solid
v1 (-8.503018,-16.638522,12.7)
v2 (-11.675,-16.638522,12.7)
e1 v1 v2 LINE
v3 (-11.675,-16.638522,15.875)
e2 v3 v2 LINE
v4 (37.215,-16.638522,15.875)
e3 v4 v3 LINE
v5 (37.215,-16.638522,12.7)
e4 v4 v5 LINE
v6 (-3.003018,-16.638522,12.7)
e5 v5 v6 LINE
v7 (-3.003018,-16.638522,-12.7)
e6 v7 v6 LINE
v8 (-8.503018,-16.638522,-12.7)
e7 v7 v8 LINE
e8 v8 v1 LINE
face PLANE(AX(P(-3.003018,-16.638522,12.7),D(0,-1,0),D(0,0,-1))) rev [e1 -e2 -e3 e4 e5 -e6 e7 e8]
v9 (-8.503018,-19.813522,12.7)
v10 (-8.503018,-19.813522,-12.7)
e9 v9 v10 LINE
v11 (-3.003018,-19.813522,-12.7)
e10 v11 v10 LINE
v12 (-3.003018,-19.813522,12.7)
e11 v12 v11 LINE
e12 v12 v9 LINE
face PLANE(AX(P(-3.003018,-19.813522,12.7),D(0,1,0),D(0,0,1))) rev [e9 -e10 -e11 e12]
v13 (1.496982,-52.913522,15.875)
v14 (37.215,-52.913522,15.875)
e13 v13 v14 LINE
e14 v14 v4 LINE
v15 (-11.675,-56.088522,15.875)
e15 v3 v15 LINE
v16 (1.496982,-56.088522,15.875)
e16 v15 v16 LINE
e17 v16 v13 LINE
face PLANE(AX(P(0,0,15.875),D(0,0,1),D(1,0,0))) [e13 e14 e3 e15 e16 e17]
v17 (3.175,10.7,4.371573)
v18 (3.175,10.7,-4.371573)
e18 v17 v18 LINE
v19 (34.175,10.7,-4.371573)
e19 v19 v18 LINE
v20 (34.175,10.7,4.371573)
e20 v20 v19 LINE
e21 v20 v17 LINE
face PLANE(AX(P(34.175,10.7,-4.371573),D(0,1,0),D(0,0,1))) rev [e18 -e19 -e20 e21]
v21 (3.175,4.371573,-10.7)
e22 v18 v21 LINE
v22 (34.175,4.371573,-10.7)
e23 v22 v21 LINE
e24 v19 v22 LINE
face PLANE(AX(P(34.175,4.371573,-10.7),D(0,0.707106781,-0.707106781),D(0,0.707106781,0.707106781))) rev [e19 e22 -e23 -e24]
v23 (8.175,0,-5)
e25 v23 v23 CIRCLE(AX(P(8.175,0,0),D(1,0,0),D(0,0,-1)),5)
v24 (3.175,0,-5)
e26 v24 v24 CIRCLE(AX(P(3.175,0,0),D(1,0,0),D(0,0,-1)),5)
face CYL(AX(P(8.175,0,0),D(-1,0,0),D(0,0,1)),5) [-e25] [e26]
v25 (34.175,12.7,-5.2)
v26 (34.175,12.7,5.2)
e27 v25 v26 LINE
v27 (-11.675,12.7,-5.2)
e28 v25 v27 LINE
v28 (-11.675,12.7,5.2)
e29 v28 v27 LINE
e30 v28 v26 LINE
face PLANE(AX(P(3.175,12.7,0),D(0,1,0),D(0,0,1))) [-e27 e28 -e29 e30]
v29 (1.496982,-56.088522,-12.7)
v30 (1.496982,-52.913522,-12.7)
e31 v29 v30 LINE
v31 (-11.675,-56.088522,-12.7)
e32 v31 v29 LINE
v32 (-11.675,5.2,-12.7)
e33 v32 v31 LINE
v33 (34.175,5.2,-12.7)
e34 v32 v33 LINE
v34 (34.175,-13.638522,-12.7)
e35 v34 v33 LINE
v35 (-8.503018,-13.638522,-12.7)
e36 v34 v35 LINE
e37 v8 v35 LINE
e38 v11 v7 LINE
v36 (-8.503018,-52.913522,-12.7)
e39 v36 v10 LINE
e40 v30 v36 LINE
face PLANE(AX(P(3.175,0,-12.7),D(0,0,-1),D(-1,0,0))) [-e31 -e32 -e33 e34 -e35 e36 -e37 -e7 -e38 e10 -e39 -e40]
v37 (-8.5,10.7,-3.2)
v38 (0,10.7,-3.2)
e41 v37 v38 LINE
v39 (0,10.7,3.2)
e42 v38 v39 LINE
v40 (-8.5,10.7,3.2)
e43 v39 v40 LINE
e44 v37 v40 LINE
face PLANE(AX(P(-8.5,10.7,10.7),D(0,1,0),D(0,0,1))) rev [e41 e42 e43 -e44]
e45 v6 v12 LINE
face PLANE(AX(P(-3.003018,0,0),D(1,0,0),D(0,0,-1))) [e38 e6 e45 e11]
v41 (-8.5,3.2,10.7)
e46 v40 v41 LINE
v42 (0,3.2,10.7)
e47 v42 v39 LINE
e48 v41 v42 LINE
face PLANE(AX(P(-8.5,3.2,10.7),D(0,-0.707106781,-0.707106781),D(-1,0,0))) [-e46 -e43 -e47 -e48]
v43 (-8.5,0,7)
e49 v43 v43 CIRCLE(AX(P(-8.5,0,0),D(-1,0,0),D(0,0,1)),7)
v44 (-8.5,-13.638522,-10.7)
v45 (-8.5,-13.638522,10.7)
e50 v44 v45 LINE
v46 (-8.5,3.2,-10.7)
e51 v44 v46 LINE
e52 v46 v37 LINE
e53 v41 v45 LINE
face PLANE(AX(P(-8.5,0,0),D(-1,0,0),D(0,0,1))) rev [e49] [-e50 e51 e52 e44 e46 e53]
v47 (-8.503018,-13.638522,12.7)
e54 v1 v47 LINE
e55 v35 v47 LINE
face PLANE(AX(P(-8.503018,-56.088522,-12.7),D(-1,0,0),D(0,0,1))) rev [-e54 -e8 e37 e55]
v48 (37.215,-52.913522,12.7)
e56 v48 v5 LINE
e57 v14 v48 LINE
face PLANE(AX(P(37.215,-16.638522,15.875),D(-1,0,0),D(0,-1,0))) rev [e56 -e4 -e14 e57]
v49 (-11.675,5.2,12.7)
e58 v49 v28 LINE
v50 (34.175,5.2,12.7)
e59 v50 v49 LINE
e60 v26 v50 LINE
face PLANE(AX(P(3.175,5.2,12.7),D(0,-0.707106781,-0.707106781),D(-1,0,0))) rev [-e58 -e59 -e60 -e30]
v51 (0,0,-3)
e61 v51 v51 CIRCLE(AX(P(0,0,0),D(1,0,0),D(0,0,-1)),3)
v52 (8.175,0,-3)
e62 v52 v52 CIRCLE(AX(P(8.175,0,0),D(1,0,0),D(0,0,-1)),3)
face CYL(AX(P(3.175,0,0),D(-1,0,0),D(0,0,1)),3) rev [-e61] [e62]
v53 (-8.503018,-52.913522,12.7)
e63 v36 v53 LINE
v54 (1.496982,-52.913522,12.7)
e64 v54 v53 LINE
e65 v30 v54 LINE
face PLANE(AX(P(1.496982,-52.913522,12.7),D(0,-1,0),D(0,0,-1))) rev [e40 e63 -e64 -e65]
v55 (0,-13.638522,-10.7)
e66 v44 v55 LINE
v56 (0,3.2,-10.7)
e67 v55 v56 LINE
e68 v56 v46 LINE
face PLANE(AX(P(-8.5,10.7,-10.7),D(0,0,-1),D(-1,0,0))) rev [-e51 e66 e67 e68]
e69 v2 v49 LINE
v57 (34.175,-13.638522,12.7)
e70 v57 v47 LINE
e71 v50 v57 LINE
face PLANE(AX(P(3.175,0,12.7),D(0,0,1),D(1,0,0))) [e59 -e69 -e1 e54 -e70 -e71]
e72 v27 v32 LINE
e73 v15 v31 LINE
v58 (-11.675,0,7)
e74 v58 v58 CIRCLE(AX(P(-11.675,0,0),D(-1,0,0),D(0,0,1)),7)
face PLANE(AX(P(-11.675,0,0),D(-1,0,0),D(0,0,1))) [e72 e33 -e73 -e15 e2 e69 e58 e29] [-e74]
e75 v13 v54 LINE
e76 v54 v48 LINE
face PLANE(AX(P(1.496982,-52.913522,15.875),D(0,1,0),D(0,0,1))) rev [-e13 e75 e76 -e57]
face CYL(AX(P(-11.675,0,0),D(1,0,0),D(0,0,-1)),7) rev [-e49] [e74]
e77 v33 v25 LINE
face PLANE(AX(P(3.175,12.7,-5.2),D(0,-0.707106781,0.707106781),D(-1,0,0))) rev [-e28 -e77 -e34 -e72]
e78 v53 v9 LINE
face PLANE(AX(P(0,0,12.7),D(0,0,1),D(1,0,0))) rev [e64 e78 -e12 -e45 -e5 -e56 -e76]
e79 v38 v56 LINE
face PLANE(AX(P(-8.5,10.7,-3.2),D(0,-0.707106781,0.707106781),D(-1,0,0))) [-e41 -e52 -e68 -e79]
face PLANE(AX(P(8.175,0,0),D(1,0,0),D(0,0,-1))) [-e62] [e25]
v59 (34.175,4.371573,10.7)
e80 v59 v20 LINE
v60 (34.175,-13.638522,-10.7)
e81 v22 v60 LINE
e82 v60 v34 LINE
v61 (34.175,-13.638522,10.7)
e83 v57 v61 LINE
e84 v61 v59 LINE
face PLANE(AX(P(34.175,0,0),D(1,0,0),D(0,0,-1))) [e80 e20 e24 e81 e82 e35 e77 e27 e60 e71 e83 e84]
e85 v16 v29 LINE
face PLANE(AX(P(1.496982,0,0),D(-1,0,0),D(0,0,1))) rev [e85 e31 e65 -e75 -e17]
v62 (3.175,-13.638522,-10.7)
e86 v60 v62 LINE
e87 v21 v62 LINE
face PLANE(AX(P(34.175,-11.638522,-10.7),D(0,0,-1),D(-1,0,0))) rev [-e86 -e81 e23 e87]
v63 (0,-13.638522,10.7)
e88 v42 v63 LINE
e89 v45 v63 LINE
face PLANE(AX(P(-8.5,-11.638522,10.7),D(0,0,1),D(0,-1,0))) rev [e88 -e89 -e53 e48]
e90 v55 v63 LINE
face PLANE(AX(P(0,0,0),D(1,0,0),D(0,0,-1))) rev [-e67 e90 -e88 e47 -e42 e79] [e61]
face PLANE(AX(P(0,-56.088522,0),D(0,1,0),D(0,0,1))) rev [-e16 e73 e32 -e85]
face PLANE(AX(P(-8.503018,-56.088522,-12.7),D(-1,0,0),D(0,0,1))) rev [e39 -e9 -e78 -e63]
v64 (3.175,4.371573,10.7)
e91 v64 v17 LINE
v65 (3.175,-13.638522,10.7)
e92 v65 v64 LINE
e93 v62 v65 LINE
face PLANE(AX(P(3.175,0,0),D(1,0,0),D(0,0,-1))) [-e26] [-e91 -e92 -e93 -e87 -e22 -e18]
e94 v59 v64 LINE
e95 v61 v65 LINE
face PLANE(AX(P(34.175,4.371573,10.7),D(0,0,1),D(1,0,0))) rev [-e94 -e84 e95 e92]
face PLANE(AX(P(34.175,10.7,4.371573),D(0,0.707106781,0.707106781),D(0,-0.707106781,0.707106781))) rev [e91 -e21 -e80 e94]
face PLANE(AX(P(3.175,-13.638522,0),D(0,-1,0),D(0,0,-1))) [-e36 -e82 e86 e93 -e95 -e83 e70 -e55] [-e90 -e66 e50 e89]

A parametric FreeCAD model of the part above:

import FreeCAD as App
import Part
import Sketcher

V = App.Vector


def edges_at(feature, points):
    """Names of the edges that pass closest to the given points."""
    edges = feature.Shape.Edges
    near = lambda p: min(range(len(edges)), key=lambda i: edges[i].distToShape(Part.Vertex(*p))[0])
    return sorted({f"Edge{near(p) + 1}" for p in points})

doc = App.newDocument("Part")
params = doc.addObject("Spreadsheet::Sheet", "Params")
for row, (alias, value) in enumerate([
    ("sketch1_diameter", "6 mm"),
    ("sketch1_height", "25.4 mm"),
    ("pad1_length", "3.175 mm"),
    ("sketch2_height", "2 mm"),
    ("sketch2_height2", "21.4 mm"),
    ("pad2_length", "8.5 mm"),
    ("sketch3_diameter", "14 mm"),
    ("sketch3_height", "25.4 mm"),
    ("pad3_length", "3.175 mm"),
    ("sketch4_height", "25.4 mm"),
    ("pad4_length", "42.45 mm"),
    ("sketch5_diameter", "10 mm"),
    ("sketch5_diameter2", "6 mm"),
    ("pad5_length", "5 mm"),
    ("chamfer_size", "7.5 mm"),
    ("sketch6_height", "25.4 mm"),
    ("pad6_length", "5.5 mm"),
    ("sketch7_height", "25.4 mm"),
    ("pad7_length", "10 mm"),
    ("sketch8_height", "2 mm"),
    ("sketch8_height2", "10.4 mm"),
    ("pad8_length", "31 mm"),
    ("sketch9_width", "48.89 mm"),
    ("sketch9_height", "39.45 mm"),
    ("pad9_length", "3.175 mm"),
], start=1):
    params.set(f"A{row}", alias)
    params.set(f"B{row}", "=" + value)
    params.setAlias(f"B{row}", alias)

body = doc.addObject("PartDesign::Body", "Body")

# Sketch on YZ plane
sketch1 = doc.addObject("Sketcher::SketchObject", "Sketch")
body.addObject(sketch1)
sketch1.AttachmentSupport = (doc.YZ_Plane, [""])
sketch1.MapMode = "FlatFace"
sketch1.addGeometry([
    Part.LineSegment(V(12.7, 12.7, 0), V(-13.6, 12.7, 0)),  # 0
    Part.LineSegment(V(-13.6, 12.7, 0), V(-13.6, -12.7, 0)),  # 1
    Part.LineSegment(V(-13.6, -12.7, 0), V(12.7, -12.7, 0)),  # 2
    Part.LineSegment(V(12.7, -12.7, 0), V(12.7, 12.7, 0)),  # 3
    Part.Circle(V(0, 0, 0), V(0, 0, 1), 3),  # 4
], False)
sketch1.addConstraint([
    Sketcher.Constraint("Coincident", 0, 2, 1, 1),
    Sketcher.Constraint("Coincident", 1, 2, 2, 1),
    Sketcher.Constraint("Coincident", 2, 2, 3, 1),
    Sketcher.Constraint("Coincident", 3, 2, 0, 1),
    Sketcher.Constraint("Horizontal", 0),
    Sketcher.Constraint("Vertical", 1),
    Sketcher.Constraint("Horizontal", 2),
    Sketcher.Constraint("Vertical", 3),
    Sketcher.Constraint("Coincident", 4, 3, -1, 1),
    Sketcher.Constraint("Diameter", 4, 6.0),
    Sketcher.Constraint("DistanceY", 1, 2, 1, 1, 25.4),
    Sketcher.Constraint("DistanceY", -1, 1, 0, 2, 12.7),
    Sketcher.Constraint("DistanceX", -1, 1, 2, 2, 12.7),
    Sketcher.Constraint("DistanceX", 0, 2, 0, 1, 26.338522),
])
sketch1.setExpression("Constraints[9]", "Params.sketch1_diameter")
sketch1.setExpression("Constraints[10]", "Params.sketch1_height")
pad1 = doc.addObject("PartDesign::Pad", "Pad")
body.addObject(pad1)
pad1.Profile = sketch1
pad1.setExpression("Length", "Params.pad1_length")

# Sketch on YZ plane
sketch2 = doc.addObject("Sketcher::SketchObject", "Sketch001")
body.addObject(sketch2)
sketch2.AttachmentSupport = (doc.YZ_Plane, [""])
sketch2.MapMode = "FlatFace"
sketch2.addGeometry([
    Part.LineSegment(V(-13.6, -10.7, 0), V(10.7, -10.7, 0)),  # 0
    Part.LineSegment(V(10.7, -10.7, 0), V(10.7, 10.7, 0)),  # 1
    Part.LineSegment(V(10.7, 10.7, 0), V(-13.6, 10.7, 0)),  # 2
    Part.LineSegment(V(-13.6, 10.7, 0), V(-13.6, 12.7, 0)),  # 3
    Part.LineSegment(V(-13.6, 12.7, 0), V(12.7, 12.7, 0)),  # 4
    Part.LineSegment(V(12.7, 12.7, 0), V(12.7, -12.7, 0)),  # 5
    Part.LineSegment(V(12.7, -12.7, 0), V(-13.6, -12.7, 0)),  # 6
    Part.LineSegment(V(-13.6, -12.7, 0), V(-13.6, -10.7, 0)),  # 7
], False)
sketch2.addConstraint([
    Sketcher.Constraint("Coincident", 0, 2, 1, 1),
    Sketcher.Constraint("Coincident", 1, 2, 2, 1),
    Sketcher.Constraint("Coincident", 2, 2, 3, 1),
    Sketcher.Constraint("Coincident", 3, 2, 4, 1),
    Sketcher.Constraint("Coincident", 4, 2, 5, 1),
    Sketcher.Constraint("Coincident", 5, 2, 6, 1),
    Sketcher.Constraint("Coincident", 6, 2, 7, 1),
    Sketcher.Constraint("Coincident", 7, 2, 0, 1),
    Sketcher.Constraint("Horizontal", 0),
    Sketcher.Constraint("Vertical", 1),
    Sketcher.Constraint("Horizontal", 2),
    Sketcher.Constraint("Vertical", 3),
    Sketcher.Constraint("Horizontal", 4),
    Sketcher.Constraint("Vertical", 5),
    Sketcher.Constraint("Horizontal", 6),
    Sketcher.Constraint("Vertical", 7),
    Sketcher.Constraint("Symmetric", 3, 2, 6, 2, -1),
    Sketcher.Constraint("Equal", 3, 7),
    Sketcher.Constraint("DistanceY", 3, 1, 3, 2, 2.0),
    Sketcher.Constraint("DistanceY", 1, 1, 1, 2, 21.4),
    Sketcher.Constraint("DistanceX", 1, 2, 4, 2, 2.0),
    Sketcher.Constraint("DistanceX", -1, 1, 0, 2, 10.7),
    Sketcher.Constraint("DistanceX", 0, 1, 0, 2, 24.338522),
])
sketch2.setExpression("Constraints[18]", "Params.sketch2_height")
sketch2.setExpression("Constraints[19]", "Params.sketch2_height2")
pad2 = doc.addObject("PartDesign::Pad", "Pad001")
body.addObject(pad2)
pad2.Profile = sketch2
pad2.setExpression("Length", "Params.pad2_length")
pad2.Reversed = True

# Sketch on YZ plane
sketch3 = doc.addObject("Sketcher::SketchObject", "Sketch002")
body.addObject(sketch3)
sketch3.AttachmentSupport = (doc.YZ_Plane, [""])
sketch3.MapMode = "FlatFace"
sketch3.AttachmentOffset = App.Placement(V(0, 0, -8.5), App.Rotation())
sketch3.addGeometry([
    Part.LineSegment(V(-14, 13, 0), V(13, 13, 0)),  # 0
    Part.LineSegment(V(13, 13, 0), V(13, -13, 0)),  # 1
    Part.LineSegment(V(13, -13, 0), V(-14, -13, 0)),  # 2
    Part.LineSegment(V(-14, -13, 0), V(-14, 13, 0)),  # 3
    Part.Circle(V(0, 0, 0), V(0, 0, 1), 7),  # 4
], False)
sketch3.addConstraint([
    Sketcher.Constraint("Coincident", 0, 2, 1, 1),
    Sketcher.Constraint("Coincident", 1, 2, 2, 1),
    Sketcher.Constraint("Coincident", 2, 2, 3, 1),
    Sketcher.Constraint("Coincident", 3, 2, 0, 1),
    Sketcher.Constraint("Horizontal", 0),
    Sketcher.Constraint("Vertical", 1),
    Sketcher.Constraint("Horizontal", 2),
    Sketcher.Constraint("Vertical", 3),
    Sketcher.Constraint("Coincident", 4, 3, -1, 1),
    Sketcher.Constraint("Diameter", 4, 14.0),
    Sketcher.Constraint("DistanceY", 1, 2, 1, 1, 25.4),
    Sketcher.Constraint("DistanceX", -1, 1, 0, 2, 12.7),
    Sketcher.Constraint("DistanceY", -1, 1, 0, 2, 12.7),
    Sketcher.Constraint("DistanceX", 0, 1, 0, 2, 26.338522),
])
sketch3.setExpression("Constraints[9]", "Params.sketch3_diameter")
sketch3.setExpression("Constraints[10]", "Params.sketch3_height")
pad3 = doc.addObject("PartDesign::Pad", "Pad002")
body.addObject(pad3)
pad3.Profile = sketch3
pad3.setExpression("Length", "Params.pad3_length")
pad3.Reversed = True

# Sketch on XZ plane
sketch4 = doc.addObject("Sketcher::SketchObject", "Sketch003")
body.addObject(sketch4)
sketch4.AttachmentSupport = (doc.XZ_Plane, [""])
sketch4.MapMode = "FlatFace"
sketch4.AttachmentOffset = App.Placement(V(0, 0, 13.638522), App.Rotation())
sketch4.addGeometry([
    Part.LineSegment(V(-11.7, 12.7, 0), V(-11.7, -12.7, 0)),
    Part.LineSegment(V(-11.7, -12.7, 0), V(-8.5, -12.7, 0)),
    Part.LineSegment(V(-8.5, -12.7, 0), V(-8.5, 12.7, 0)),
    Part.LineSegment(V(-8.5, 12.7, 0), V(-11.7, 12.7, 0)),
], False)
sketch4.addConstraint([
    Sketcher.Constraint("Coincident", 0, 2, 1, 1),
    Sketcher.Constraint("Coincident", 1, 2, 2, 1),
    Sketcher.Constraint("Coincident", 2, 2, 3, 1),
    Sketcher.Constraint("Coincident", 3, 2, 0, 1),
    Sketcher.Constraint("Vertical", 0),
    Sketcher.Constraint("Horizontal", 1),
    Sketcher.Constraint("Vertical", 2),
    Sketcher.Constraint("Horizontal", 3),
    Sketcher.Constraint("DistanceY", 0, 2, 0, 1, 25.4),
    Sketcher.Constraint("DistanceY", 0, 2, -1, 1, 12.7),
    Sketcher.Constraint("DistanceX", 0, 2, -1, 1, 11.675),
    Sketcher.Constraint("DistanceX", 1, 1, 1, 2, 3.171982),
])
sketch4.setExpression("Constraints[8]", "Params.sketch4_height")
pad4 = doc.addObject("PartDesign::Pad", "Pad003")
body.addObject(pad4)
pad4.Profile = sketch4
pad4.setExpression("Length", "Params.pad4_length")

# Sketch on YZ plane
sketch5 = doc.addObject("Sketcher::SketchObject", "Sketch004")
body.addObject(sketch5)
sketch5.AttachmentSupport = (doc.YZ_Plane, [""])
sketch5.MapMode = "FlatFace"
sketch5.AttachmentOffset = App.Placement(V(0, 0, 3.175), App.Rotation())
sketch5.addGeometry([
    Part.Circle(V(0, 0, 0), V(0, 0, 1), 5),
    Part.Circle(V(0, 0, 0), V(0, 0, 1), 3),
], False)
sketch5.addConstraint([
    Sketcher.Constraint("Coincident", 0, 3, -1, 1),
    Sketcher.Constraint("Coincident", 1, 3, -1, 1),
    Sketcher.Constraint("Diameter", 0, 10.0),
    Sketcher.Constraint("Diameter", 1, 6.0),
])
sketch5.setExpression("Constraints[2]", "Params.sketch5_diameter")
sketch5.setExpression("Constraints[3]", "Params.sketch5_diameter2")
pad5 = doc.addObject("PartDesign::Pad", "Pad004")
body.addObject(pad5)
pad5.Profile = sketch5
pad5.setExpression("Length", "Params.pad5_length")
doc.recompute()

chamfer = doc.addObject("PartDesign::Chamfer", "Chamfer")
body.addObject(chamfer)
chamfer.Base = (pad5, edges_at(pad5, [
    (-4.25, 12.7, 12.7),
    (-4.25, 12.7, -12.7),
    (-4.25, 10.7, -10.7),
    (-4.25, 10.7, 10.7),
]))
chamfer.setExpression("Size", "Params.chamfer_size")

# Sketch on YZ plane
sketch6 = doc.addObject("Sketcher::SketchObject", "Sketch005")
body.addObject(sketch6)
sketch6.AttachmentSupport = (doc.YZ_Plane, [""])
sketch6.MapMode = "FlatFace"
sketch6.AttachmentOffset = App.Placement(V(0, 0, -8.503018), App.Rotation())
sketch6.addGeometry([
    Part.LineSegment(V(-16.6, 12.7, 0), V(-19.8, 12.7, 0)),
    Part.LineSegment(V(-19.8, 12.7, 0), V(-19.8, -12.7, 0)),
    Part.LineSegment(V(-19.8, -12.7, 0), V(-16.6, -12.7, 0)),
    Part.LineSegment(V(-16.6, -12.7, 0), V(-16.6, 12.7, 0)),
], False)
sketch6.addConstraint([
    Sketcher.Constraint("Coincident", 0, 2, 1, 1),
    Sketcher.Constraint("Coincident", 1, 2, 2, 1),
    Sketcher.Constraint("Coincident", 2, 2, 3, 1),
    Sketcher.Constraint("Coincident", 3, 2, 0, 1),
    Sketcher.Constraint("Horizontal", 0),
    Sketcher.Constraint("Vertical", 1),
    Sketcher.Constraint("Horizontal", 2),
    Sketcher.Constraint("Vertical", 3),
    Sketcher.Constraint("DistanceY", 1, 2, 1, 1, 25.4),
    Sketcher.Constraint("DistanceY", -1, 1, 0, 2, 12.7),
    Sketcher.Constraint("DistanceX", 0, 2, 0, 1, 3.175),
    Sketcher.Constraint("DistanceX", 0, 2, -1, 1, 19.813522),
])
sketch6.setExpression("Constraints[8]", "Params.sketch6_height")
pad6 = doc.addObject("PartDesign::Pad", "Pad005")
body.addObject(pad6)
pad6.Profile = sketch6
pad6.setExpression("Length", "Params.pad6_length")

# Sketch on YZ plane
sketch7 = doc.addObject("Sketcher::SketchObject", "Sketch006")
body.addObject(sketch7)
sketch7.AttachmentSupport = (doc.YZ_Plane, [""])
sketch7.MapMode = "FlatFace"
sketch7.AttachmentOffset = App.Placement(V(0, 0, -8.503018), App.Rotation())
sketch7.addGeometry([
    Part.LineSegment(V(-52.9, 12.7, 0), V(-56.1, 12.7, 0)),
    Part.LineSegment(V(-56.1, 12.7, 0), V(-56.1, -12.7, 0)),
    Part.LineSegment(V(-56.1, -12.7, 0), V(-52.9, -12.7, 0)),
    Part.LineSegment(V(-52.9, -12.7, 0), V(-52.9, 12.7, 0)),
], False)
sketch7.addConstraint([
    Sketcher.Constraint("Coincident", 0, 2, 1, 1),
    Sketcher.Constraint("Coincident", 1, 2, 2, 1),
    Sketcher.Constraint("Coincident", 2, 2, 3, 1),
    Sketcher.Constraint("Coincident", 3, 2, 0, 1),
    Sketcher.Constraint("Horizontal", 0),
    Sketcher.Constraint("Vertical", 1),
    Sketcher.Constraint("Horizontal", 2),
    Sketcher.Constraint("Vertical", 3),
    Sketcher.Constraint("DistanceY", 1, 2, 1, 1, 25.4),
    Sketcher.Constraint("DistanceY", -1, 1, 0, 2, 12.7),
    Sketcher.Constraint("DistanceX", 0, 2, 0, 1, 3.175),
    Sketcher.Constraint("DistanceX", 0, 2, -1, 1, 56.088522),
])
sketch7.setExpression("Constraints[8]", "Params.sketch7_height")
pad7 = doc.addObject("PartDesign::Pad", "Pad006")
body.addObject(pad7)
pad7.Profile = sketch7
pad7.setExpression("Length", "Params.pad7_length")

# Sketch on YZ plane
sketch8 = doc.addObject("Sketcher::SketchObject", "Sketch007")
body.addObject(sketch8)
sketch8.AttachmentSupport = (doc.YZ_Plane, [""])
sketch8.MapMode = "FlatFace"
sketch8.AttachmentOffset = App.Placement(V(0, 0, 3.175), App.Rotation())
sketch8.addGeometry([
    Part.LineSegment(V(12.7, -5.2, 0), V(12.7, 5.2, 0)),  # 0
    Part.LineSegment(V(12.7, 5.2, 0), V(5.2, 12.7, 0)),  # 1
    Part.LineSegment(V(5.2, 12.7, 0), V(-13.6, 12.7, 0)),  # 2
    Part.LineSegment(V(-13.6, 12.7, 0), V(-13.6, 10.7, 0)),  # 3
    Part.LineSegment(V(-13.6, 10.7, 0), V(4.4, 10.7, 0)),  # 4
    Part.LineSegment(V(4.4, 10.7, 0), V(10.7, 4.4, 0)),  # 5
    Part.LineSegment(V(10.7, 4.4, 0), V(10.7, -4.4, 0)),  # 6
    Part.LineSegment(V(10.7, -4.4, 0), V(4.4, -10.7, 0)),  # 7
    Part.LineSegment(V(4.4, -10.7, 0), V(-13.6, -10.7, 0)),  # 8
    Part.LineSegment(V(-13.6, -10.7, 0), V(-13.6, -12.7, 0)),  # 9
    Part.LineSegment(V(-13.6, -12.7, 0), V(5.2, -12.7, 0)),  # 10
    Part.LineSegment(V(5.2, -12.7, 0), V(12.7, -5.2, 0)),  # 11
], False)
sketch8.addConstraint([
    Sketcher.Constraint("Coincident", 0, 2, 1, 1),
    Sketcher.Constraint("Coincident", 1, 2, 2, 1),
    Sketcher.Constraint("Coincident", 2, 2, 3, 1),
    Sketcher.Constraint("Coincident", 3, 2, 4, 1),
    Sketcher.Constraint("Coincident", 4, 2, 5, 1),
    Sketcher.Constraint("Coincident", 5, 2, 6, 1),
    Sketcher.Constraint("Coincident", 6, 2, 7, 1),
    Sketcher.Constraint("Coincident", 7, 2, 8, 1),
    Sketcher.Constraint("Coincident", 8, 2, 9, 1),
    Sketcher.Constraint("Coincident", 9, 2, 10, 1),
    Sketcher.Constraint("Coincident", 10, 2, 11, 1),
    Sketcher.Constraint("Coincident", 11, 2, 0, 1),
    Sketcher.Constraint("Vertical", 0),
    Sketcher.Constraint("Horizontal", 2),
    Sketcher.Constraint("Vertical", 3),
    Sketcher.Constraint("Horizontal", 4),
    Sketcher.Constraint("Vertical", 6),
    Sketcher.Constraint("Horizontal", 8),
    Sketcher.Constraint("Vertical", 9),
    Sketcher.Constraint("Horizontal", 10),
    Sketcher.Constraint("Symmetric", 4, 2, 7, 2, -1),
    Sketcher.Constraint("Symmetric", 2, 2, 9, 2, -1),
    Sketcher.Constraint("Parallel", 1, 5),
    Sketcher.Constraint("Perpendicular", 5, 7),
    Sketcher.Constraint("Parallel", 7, 11),
    Sketcher.Constraint("Vertical", 1, 2, 10, 2),
    Sketcher.Constraint("Equal", 5, 7),
    Sketcher.Constraint("DistanceY", 3, 2, 3, 1, 2.0),
    Sketcher.Constraint("DistanceY", 0, 1, 0, 2, 10.4),
    Sketcher.Constraint("DistanceX", 5, 2, 0, 2, 2.0),
    Sketcher.Constraint("DistanceX", -1, 1, 0, 2, 12.7),
    Sketcher.Constraint("DistanceX", -1, 1, 1, 2, 5.2),
    Sketcher.Constraint("DistanceX", 2, 2, 2, 1, 18.838522),
    Sketcher.Constraint("DistanceX", 4, 1, 4, 2, 18.010094),
])
sketch8.setExpression("Constraints[27]", "Params.sketch8_height")
sketch8.setExpression("Constraints[28]", "Params.sketch8_height2")
pad8 = doc.addObject("PartDesign::Pad", "Pad007")
body.addObject(pad8)
pad8.Profile = sketch8
pad8.setExpression("Length", "Params.pad8_length")

# Sketch on XY plane
sketch9 = doc.addObject("Sketcher::SketchObject", "Sketch008")
body.addObject(sketch9)
sketch9.AttachmentSupport = (doc.XY_Plane, [""])
sketch9.MapMode = "FlatFace"
sketch9.AttachmentOffset = App.Placement(V(0, 0, 12.7), App.Rotation())
sketch9.addGeometry([
    Part.LineSegment(V(-11.7, -56.1, 0), V(1.5, -56.1, 0)),  # 0
    Part.LineSegment(V(1.5, -56.1, 0), V(1.5, -52.9, 0)),  # 1
    Part.LineSegment(V(1.5, -52.9, 0), V(37.2, -52.9, 0)),  # 2
    Part.LineSegment(V(37.2, -52.9, 0), V(37.2, -16.6, 0)),  # 3
    Part.LineSegment(V(37.2, -16.6, 0), V(-11.7, -16.6, 0)),  # 4
    Part.LineSegment(V(-11.7, -16.6, 0), V(-11.7, -56.1, 0)),  # 5
], False)
sketch9.addConstraint([
    Sketcher.Constraint("Coincident", 0, 2, 1, 1),
    Sketcher.Constraint("Coincident", 1, 2, 2, 1),
    Sketcher.Constraint("Coincident", 2, 2, 3, 1),
    Sketcher.Constraint("Coincident", 3, 2, 4, 1),
    Sketcher.Constraint("Coincident", 4, 2, 5, 1),
    Sketcher.Constraint("Coincident", 5, 2, 0, 1),
    Sketcher.Constraint("Horizontal", 0),
    Sketcher.Constraint("Vertical", 1),
    Sketcher.Constraint("Horizontal", 2),
    Sketcher.Constraint("Vertical", 3),
    Sketcher.Constraint("Horizontal", 4),
    Sketcher.Constraint("Vertical", 5),
    Sketcher.Constraint("DistanceX", 4, 2, 4, 1, 48.89),
    Sketcher.Constraint("DistanceY", 5, 2, 5, 1, 39.45),
    Sketcher.Constraint("DistanceY", 1, 1, 1, 2, 3.175),
    Sketcher.Constraint("DistanceX", -1, 1, 2, 2, 37.215),
    Sketcher.Constraint("DistanceX", 0, 1, 0, 2, 13.171982),
    Sketcher.Constraint("DistanceY", 0, 2, -1, 1, 56.088522),
])
sketch9.setExpression("Constraints[12]", "Params.sketch9_width")
sketch9.setExpression("Constraints[13]", "Params.sketch9_height")
pad9 = doc.addObject("PartDesign::Pad", "Pad008")
body.addObject(pad9)
pad9.Profile = sketch9
pad9.setExpression("Length", "Params.pad9_length")

doc.recompute()
